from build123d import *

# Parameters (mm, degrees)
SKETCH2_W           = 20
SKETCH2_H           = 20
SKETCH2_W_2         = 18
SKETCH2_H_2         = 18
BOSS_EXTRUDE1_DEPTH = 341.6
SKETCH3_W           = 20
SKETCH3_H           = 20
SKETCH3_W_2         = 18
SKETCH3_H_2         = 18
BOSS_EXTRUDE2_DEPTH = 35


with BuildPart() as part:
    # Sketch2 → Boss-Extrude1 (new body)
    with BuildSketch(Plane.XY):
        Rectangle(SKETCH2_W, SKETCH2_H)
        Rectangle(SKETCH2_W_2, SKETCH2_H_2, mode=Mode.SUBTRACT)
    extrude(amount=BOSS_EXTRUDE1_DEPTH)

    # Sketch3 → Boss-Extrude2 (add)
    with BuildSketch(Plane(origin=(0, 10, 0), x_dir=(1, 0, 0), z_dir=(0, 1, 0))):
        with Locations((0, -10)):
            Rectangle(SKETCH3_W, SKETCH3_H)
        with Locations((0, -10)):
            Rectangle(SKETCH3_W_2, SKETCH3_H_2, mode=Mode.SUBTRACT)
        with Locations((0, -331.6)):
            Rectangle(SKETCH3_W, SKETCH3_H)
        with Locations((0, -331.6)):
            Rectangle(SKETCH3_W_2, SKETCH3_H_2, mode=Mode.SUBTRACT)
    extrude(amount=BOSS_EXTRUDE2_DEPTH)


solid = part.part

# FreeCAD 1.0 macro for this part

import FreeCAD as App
import Part
import Sketcher

V = App.Vector
Q = App.Units.Quantity

doc = App.newDocument("Part")
body = doc.addObject("PartDesign::Body", "Body")

# Sketch on XY plane
sketch1 = body.newObject("Sketcher::SketchObject", "Sketch")
sketch1.AttachmentSupport = (doc.getObject("XY_Plane"), [""])
sketch1.MapMode = "FlatFace"
sketch1.addGeometry([
    Part.LineSegment(V(-10, 10, 0), V(-10, -10, 0)),  # 0
    Part.LineSegment(V(-10, -10, 0), V(10, -10, 0)),  # 1
    Part.LineSegment(V(10, -10, 0), V(10, 10, 0)),  # 2
    Part.LineSegment(V(10, 10, 0), V(-10, 10, 0)),  # 3
    Part.LineSegment(V(9, -9, 0), V(-9, -9, 0)),  # 4
    Part.LineSegment(V(-9, -9, 0), V(-9, 9, 0)),  # 5
    Part.LineSegment(V(-9, 9, 0), V(9, 9, 0)),  # 6
    Part.LineSegment(V(9, 9, 0), V(9, -9, 0)),  # 7
], False)
sketch1.addConstraint([
    Sketcher.Constraint("Coincident", 0, 2, 1, 1),
    Sketcher.Constraint("Coincident", 1, 2, 2, 1),
    Sketcher.Constraint("Coincident", 2, 2, 3, 1),
    Sketcher.Constraint("Coincident", 3, 2, 0, 1),
    Sketcher.Constraint("Coincident", 4, 2, 5, 1),
    Sketcher.Constraint("Coincident", 5, 2, 6, 1),
    Sketcher.Constraint("Coincident", 6, 2, 7, 1),
    Sketcher.Constraint("Coincident", 7, 2, 4, 1),
    Sketcher.Constraint("Vertical", 0),
    Sketcher.Constraint("Horizontal", 1),
    Sketcher.Constraint("Vertical", 2),
    Sketcher.Constraint("Horizontal", 3),
    Sketcher.Constraint("Horizontal", 4),
    Sketcher.Constraint("Vertical", 5),
    Sketcher.Constraint("Horizontal", 6),
    Sketcher.Constraint("Vertical", 7),
    Sketcher.Constraint("Symmetric", 0, 2, 2, 2, -1, 1),
    Sketcher.Constraint("Symmetric", 4, 2, 6, 2, -1, 1),
    Sketcher.Constraint("Equal", 3, 0),
    Sketcher.Constraint("Equal", 6, 5),
    Sketcher.Constraint("DistanceX", 1, 1, 1, 2, Q("20 mm")),
    Sketcher.Constraint("DistanceX", 4, 2, 4, 1, Q("18 mm")),
])
pad1 = body.newObject("PartDesign::Pad", "Pad")
pad1.Profile = sketch1
pad1.Length = 341.6

# Sketch on XZ plane
sketch2 = body.newObject("Sketcher::SketchObject", "Sketch001")
sketch2.AttachmentSupport = (doc.getObject("XZ_Plane"), [""])
sketch2.MapMode = "FlatFace"
sketch2.AttachmentOffset = App.Placement(V(0, 0, -10), App.Rotation())
sketch2.addGeometry([
    Part.LineSegment(V(-10, 0, 0), V(-10, 20, 0)),  # 0
    Part.LineSegment(V(-10, 20, 0), V(10, 20, 0)),  # 1
    Part.LineSegment(V(10, 20, 0), V(10, 0, 0)),  # 2
    Part.LineSegment(V(10, 0, 0), V(-10, 0, 0)),  # 3
    Part.LineSegment(V(9, 19, 0), V(-9, 19, 0)),  # 4
    Part.LineSegment(V(-9, 19, 0), V(-9, 1, 0)),  # 5
    Part.LineSegment(V(-9, 1, 0), V(9, 1, 0)),  # 6
    Part.LineSegment(V(9, 1, 0), V(9, 19, 0)),  # 7
    Part.LineSegment(V(-10, 322, 0), V(-10, 342, 0)),  # 8
    Part.LineSegment(V(-10, 342, 0), V(10, 342, 0)),  # 9
    Part.LineSegment(V(10, 342, 0), V(10, 322, 0)),  # 10
    Part.LineSegment(V(10, 322, 0), V(-10, 322, 0)),  # 11
    Part.LineSegment(V(9, 341, 0), V(-9, 341, 0)),  # 12
    Part.LineSegment(V(-9, 341, 0), V(-9, 323, 0)),  # 13
    Part.LineSegment(V(-9, 323, 0), V(9, 323, 0)),  # 14
    Part.LineSegment(V(9, 323, 0), V(9, 341, 0)),  # 15
], False)
sketch2.addConstraint([
    Sketcher.Constraint("Coincident", 0, 2, 1, 1),
    Sketcher.Constraint("Coincident", 1, 2, 2, 1),
    Sketcher.Constraint("Coincident", 2, 2, 3, 1),
    Sketcher.Constraint("Coincident", 3, 2, 0, 1),
    Sketcher.Constraint("Coincident", 4, 2, 5, 1),
    Sketcher.Constraint("Coincident", 5, 2, 6, 1),
    Sketcher.Constraint("Coincident", 6, 2, 7, 1),
    Sketcher.Constraint("Coincident", 7, 2, 4, 1),
    Sketcher.Constraint("Coincident", 8, 2, 9, 1),
    Sketcher.Constraint("Coincident", 9, 2, 10, 1),
    Sketcher.Constraint("Coincident", 10, 2, 11, 1),
    Sketcher.Constraint("Coincident", 11, 2, 8, 1),
    Sketcher.Constraint("Coincident", 12, 2, 13, 1),
    Sketcher.Constraint("Coincident", 13, 2, 14, 1),
    Sketcher.Constraint("Coincident", 14, 2, 15, 1),
    Sketcher.Constraint("Coincident", 15, 2, 12, 1),
    Sketcher.Constraint("Vertical", 0),
    Sketcher.Constraint("Horizontal", 1),
    Sketcher.Constraint("Vertical", 2),
    Sketcher.Constraint("Horizontal", 3),
    Sketcher.Constraint("Horizontal", 4),
    Sketcher.Constraint("Vertical", 5),
    Sketcher.Constraint("Horizontal", 6),
    Sketcher.Constraint("Vertical", 7),
    Sketcher.Constraint("Vertical", 8),
    Sketcher.Constraint("Horizontal", 9),
    Sketcher.Constraint("Vertical", 10),
    Sketcher.Constraint("Horizontal", 11),
    Sketcher.Constraint("Horizontal", 12),
    Sketcher.Constraint("Vertical", 13),
    Sketcher.Constraint("Horizontal", 14),
    Sketcher.Constraint("Vertical", 15),
    Sketcher.Constraint("Symmetric", 2, 2, 3, 2, -1, 1),
    Sketcher.Constraint("Vertical", 3, 2, 8, 2),
    Sketcher.Constraint("Vertical", 2, 2, 9, 2),
    Sketcher.Constraint("Vertical", 5, 2, 12, 2),
    Sketcher.Constraint("Vertical", 7, 2, 14, 2),
    Sketcher.Constraint("Equal", 11, 0),
    Sketcher.Constraint("Equal", 14, 5),
    Sketcher.Constraint("Equal", 2, 8),
    Sketcher.Constraint("Equal", 7, 13),
    Sketcher.Constraint("DistanceX", 1, 1, 1, 2, Q("20 mm")),
    Sketcher.Constraint("DistanceX", 4, 2, 4, 1, Q("18 mm")),
    Sketcher.Constraint("DistanceX", 4, 2, -1, 1, Q("9 mm")),
    Sketcher.Constraint("DistanceY", -1, 1, 4, 2, Q("19 mm")),
    Sketcher.Constraint("DistanceY", 12, 2, 8, 2, Q("1 mm")),
    Sketcher.Constraint("DistanceY", -1, 1, 8, 2, Q("341.6 mm")),
])
pad2 = body.newObject("PartDesign::Pad", "Pad001")
pad2.Profile = sketch2
pad2.Length = 35
pad2.Reversed = True

doc.recompute()
